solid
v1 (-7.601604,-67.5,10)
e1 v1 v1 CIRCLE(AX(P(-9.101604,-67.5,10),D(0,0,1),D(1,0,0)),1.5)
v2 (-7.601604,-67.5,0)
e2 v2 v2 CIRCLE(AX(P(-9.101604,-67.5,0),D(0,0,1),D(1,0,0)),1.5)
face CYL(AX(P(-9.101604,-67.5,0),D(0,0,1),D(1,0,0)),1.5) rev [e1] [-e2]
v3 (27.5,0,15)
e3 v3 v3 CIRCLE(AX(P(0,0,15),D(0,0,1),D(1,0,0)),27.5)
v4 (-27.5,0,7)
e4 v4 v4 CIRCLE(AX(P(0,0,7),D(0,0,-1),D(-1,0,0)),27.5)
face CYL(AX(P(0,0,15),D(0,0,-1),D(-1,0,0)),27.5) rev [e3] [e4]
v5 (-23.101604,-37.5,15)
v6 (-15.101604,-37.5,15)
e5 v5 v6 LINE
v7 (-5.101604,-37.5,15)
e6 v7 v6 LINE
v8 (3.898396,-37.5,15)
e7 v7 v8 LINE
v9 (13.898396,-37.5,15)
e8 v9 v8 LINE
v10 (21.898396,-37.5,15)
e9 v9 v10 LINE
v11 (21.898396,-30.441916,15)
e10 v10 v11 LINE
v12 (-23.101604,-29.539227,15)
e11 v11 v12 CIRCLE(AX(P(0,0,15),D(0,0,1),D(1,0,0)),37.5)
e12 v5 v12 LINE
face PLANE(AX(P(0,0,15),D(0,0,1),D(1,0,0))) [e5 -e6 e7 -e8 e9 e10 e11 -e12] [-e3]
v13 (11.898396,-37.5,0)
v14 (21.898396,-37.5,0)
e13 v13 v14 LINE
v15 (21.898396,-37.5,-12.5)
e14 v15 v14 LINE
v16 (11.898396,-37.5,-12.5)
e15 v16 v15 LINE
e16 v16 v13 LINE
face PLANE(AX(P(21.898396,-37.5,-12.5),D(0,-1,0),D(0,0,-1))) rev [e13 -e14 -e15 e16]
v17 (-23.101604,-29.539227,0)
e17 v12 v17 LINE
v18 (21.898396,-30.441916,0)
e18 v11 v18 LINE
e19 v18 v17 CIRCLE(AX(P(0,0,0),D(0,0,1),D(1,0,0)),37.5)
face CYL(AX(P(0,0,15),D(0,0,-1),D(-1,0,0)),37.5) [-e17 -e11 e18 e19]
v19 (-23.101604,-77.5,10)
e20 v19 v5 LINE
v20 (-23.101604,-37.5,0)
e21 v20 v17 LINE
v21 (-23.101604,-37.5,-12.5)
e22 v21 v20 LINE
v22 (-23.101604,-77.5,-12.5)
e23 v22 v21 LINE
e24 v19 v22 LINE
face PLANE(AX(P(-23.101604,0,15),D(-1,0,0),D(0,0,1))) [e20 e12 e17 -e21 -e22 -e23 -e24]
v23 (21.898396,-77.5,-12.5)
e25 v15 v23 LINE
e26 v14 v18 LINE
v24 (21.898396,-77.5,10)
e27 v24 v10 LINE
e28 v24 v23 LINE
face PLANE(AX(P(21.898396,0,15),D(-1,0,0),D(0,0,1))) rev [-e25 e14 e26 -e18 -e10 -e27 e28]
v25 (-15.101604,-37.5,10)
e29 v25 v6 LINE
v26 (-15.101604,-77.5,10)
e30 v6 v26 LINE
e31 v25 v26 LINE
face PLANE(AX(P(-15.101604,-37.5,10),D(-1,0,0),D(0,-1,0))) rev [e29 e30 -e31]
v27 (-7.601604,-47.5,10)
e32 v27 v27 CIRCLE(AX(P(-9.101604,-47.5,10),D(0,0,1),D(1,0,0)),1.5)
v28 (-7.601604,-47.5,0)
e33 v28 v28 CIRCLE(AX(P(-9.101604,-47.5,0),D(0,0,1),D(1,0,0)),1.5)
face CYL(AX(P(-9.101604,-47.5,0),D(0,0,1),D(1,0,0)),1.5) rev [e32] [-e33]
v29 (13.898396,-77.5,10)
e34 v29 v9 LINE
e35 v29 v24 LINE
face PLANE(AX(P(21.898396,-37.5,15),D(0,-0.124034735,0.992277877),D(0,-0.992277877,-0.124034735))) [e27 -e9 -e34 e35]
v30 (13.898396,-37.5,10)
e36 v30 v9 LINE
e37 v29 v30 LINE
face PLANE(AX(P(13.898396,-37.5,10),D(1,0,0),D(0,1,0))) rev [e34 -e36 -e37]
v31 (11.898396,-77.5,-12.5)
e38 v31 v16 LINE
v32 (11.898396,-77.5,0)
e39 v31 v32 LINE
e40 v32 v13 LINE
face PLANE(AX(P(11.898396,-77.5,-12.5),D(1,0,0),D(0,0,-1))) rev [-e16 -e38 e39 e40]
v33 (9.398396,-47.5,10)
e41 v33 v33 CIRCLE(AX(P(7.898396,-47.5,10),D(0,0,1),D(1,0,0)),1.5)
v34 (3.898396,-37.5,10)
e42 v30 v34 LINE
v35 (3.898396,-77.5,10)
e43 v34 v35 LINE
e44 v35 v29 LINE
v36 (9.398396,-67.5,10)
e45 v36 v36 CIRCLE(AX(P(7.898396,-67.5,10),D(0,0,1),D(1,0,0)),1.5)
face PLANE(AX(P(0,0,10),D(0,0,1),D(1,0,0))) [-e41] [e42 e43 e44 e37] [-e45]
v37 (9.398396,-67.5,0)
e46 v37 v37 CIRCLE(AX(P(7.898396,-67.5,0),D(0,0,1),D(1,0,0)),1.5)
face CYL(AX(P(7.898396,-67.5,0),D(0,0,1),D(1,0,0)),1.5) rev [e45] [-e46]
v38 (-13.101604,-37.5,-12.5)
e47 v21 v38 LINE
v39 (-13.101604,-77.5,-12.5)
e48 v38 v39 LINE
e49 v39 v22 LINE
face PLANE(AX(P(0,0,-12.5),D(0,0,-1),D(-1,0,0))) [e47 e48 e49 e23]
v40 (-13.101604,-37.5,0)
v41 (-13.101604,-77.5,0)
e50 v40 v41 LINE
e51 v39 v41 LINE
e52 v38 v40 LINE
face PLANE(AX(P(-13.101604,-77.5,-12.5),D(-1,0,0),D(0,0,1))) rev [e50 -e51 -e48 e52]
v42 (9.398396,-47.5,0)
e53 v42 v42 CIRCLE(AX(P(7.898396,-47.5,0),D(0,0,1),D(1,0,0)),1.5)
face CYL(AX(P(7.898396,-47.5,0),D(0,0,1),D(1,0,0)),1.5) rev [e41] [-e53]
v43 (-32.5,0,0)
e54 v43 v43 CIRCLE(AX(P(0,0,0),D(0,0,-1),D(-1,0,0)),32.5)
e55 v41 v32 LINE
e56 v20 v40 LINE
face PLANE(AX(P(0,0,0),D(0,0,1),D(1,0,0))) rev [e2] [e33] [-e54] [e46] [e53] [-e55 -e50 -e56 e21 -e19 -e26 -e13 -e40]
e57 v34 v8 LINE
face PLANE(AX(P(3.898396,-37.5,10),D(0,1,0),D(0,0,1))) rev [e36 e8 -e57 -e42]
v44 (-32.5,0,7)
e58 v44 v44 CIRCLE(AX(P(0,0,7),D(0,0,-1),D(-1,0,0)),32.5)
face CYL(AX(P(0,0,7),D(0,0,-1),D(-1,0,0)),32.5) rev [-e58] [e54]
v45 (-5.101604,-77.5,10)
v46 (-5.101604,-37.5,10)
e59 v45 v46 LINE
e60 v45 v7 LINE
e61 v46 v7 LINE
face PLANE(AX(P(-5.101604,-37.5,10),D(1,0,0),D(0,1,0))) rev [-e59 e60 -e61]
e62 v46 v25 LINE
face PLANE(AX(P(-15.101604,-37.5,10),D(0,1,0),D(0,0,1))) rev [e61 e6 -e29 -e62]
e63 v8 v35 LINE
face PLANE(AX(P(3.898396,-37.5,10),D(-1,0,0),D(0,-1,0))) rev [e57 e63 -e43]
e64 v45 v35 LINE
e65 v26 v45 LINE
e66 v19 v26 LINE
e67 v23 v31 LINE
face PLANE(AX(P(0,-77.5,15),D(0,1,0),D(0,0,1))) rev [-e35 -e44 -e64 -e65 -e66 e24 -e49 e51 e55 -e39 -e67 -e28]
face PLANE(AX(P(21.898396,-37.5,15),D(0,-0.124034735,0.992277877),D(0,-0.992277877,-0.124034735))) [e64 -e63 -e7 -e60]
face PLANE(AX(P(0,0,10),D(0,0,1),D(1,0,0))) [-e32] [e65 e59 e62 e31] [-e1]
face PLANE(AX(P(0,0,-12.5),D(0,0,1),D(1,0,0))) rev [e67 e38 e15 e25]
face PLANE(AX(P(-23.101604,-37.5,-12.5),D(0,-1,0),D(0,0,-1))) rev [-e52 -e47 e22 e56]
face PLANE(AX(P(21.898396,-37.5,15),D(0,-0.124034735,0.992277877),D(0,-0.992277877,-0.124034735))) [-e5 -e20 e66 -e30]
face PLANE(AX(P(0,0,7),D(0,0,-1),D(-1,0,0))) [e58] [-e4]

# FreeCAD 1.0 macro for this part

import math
import FreeCAD as App
import Part
import Sketcher
from FreeCAD import Vector
Q = App.Units.Quantity


def add_polygon(sketch, points):
    """Adds a closed chain of lines whose ends are joined by coincident constraints."""
    first, n = sketch.GeometryCount, len(points)
    for a, b in zip(points, points[1:] + points[:1]):
        sketch.addGeometry(Part.LineSegment(App.Vector(*a, 0), App.Vector(*b, 0)), False)
    for i in range(n):
        sketch.addConstraint(Sketcher.Constraint("Coincident", first + i, 2, first + (i + 1) % n, 1))

doc = App.newDocument("Part")
body = doc.addObject("PartDesign::Body", "Body")

# Sketch on XY plane
sketch1 = doc.addObject("Sketcher::SketchObject", "Sketch")
body.addObject(sketch1)
sketch1.AttachmentSupport = (doc.XY_Plane, [""])
sketch1.MapMode = "FlatFace"
sketch1.addGeometry(Part.LineSegment(Vector(-23.101604, -29.539227, 0), Vector(-23.101604, -77.5, 0)), False)
sketch1.addGeometry(Part.LineSegment(Vector(-23.101604, -77.5, 0), Vector(21.898396, -77.5, 0)), False)
sketch1.addGeometry(Part.LineSegment(Vector(21.898396, -77.5, 0), Vector(21.898396, -30.441916, 0)), False)
sketch1.addGeometry(Part.ArcOfCircle(Part.Circle(Vector(0, 0, 0), Vector(0, 0, 1), 37.5), math.radians(-54.270642), math.radians(231.972272)), False)
sketch1.addGeometry(Part.Circle(Vector(0, 0, 0), Vector(0, 0, 1), 27.5), False)
sketch1.addConstraint(Sketcher.Constraint("Coincident", 0, 2, 1, 1))
sketch1.addConstraint(Sketcher.Constraint("Coincident", 1, 2, 2, 1))
sketch1.addConstraint(Sketcher.Constraint("Coincident", 2, 2, 3, 1))
sketch1.addConstraint(Sketcher.Constraint("Coincident", 3, 2, 0, 1))
sketch1.addConstraint(Sketcher.Constraint("Vertical", 0))
sketch1.addConstraint(Sketcher.Constraint("Horizontal", 1))
sketch1.addConstraint(Sketcher.Constraint("Vertical", 2))
sketch1.addConstraint(Sketcher.Constraint("Coincident", 3, 3, -1, 1))
sketch1.addConstraint(Sketcher.Constraint("Coincident", 4, 3, -1, 1))
sketch1.addConstraint(Sketcher.Constraint("Diameter", 4, Q("55 mm")))
sketch1.addConstraint(Sketcher.Constraint("Radius", 3, Q("37.5 mm")))
sketch1.addConstraint(Sketcher.Constraint("DistanceX", 1, 1, 1, 2, Q("45 mm")))
sketch1.addConstraint(Sketcher.Constraint("DistanceY", 0, 2, -1, 1, Q("77.5 mm")))
sketch1.addConstraint(Sketcher.Constraint("DistanceY", 0, 2, 0, 1, Q("47.960773 mm")))
pad1 = doc.addObject("PartDesign::Pad", "Pad")
body.addObject(pad1)
pad1.Profile = sketch1
pad1.Length = 15

# Sketch on XY plane
sketch2 = doc.addObject("Sketcher::SketchObject", "Sketch001")
body.addObject(sketch2)
sketch2.AttachmentSupport = (doc.XY_Plane, [""])
sketch2.MapMode = "FlatFace"
sketch2.addGeometry(Part.Circle(Vector(0, 0, 0), Vector(0, 0, 1), 32.5), False)
sketch2.addGeometry(Part.Circle(Vector(0, 0, 0), Vector(0, 0, 1), 27.5), False)
sketch2.addConstraint(Sketcher.Constraint("Coincident", 0, 3, -1, 1))
sketch2.addConstraint(Sketcher.Constraint("Coincident", 1, 3, -1, 1))
sketch2.addConstraint(Sketcher.Constraint("Diameter", 0, Q("65 mm")))
sketch2.addConstraint(Sketcher.Constraint("Diameter", 1, Q("55 mm")))
pocket1 = doc.addObject("PartDesign::Pocket", "Pocket")
body.addObject(pocket1)
pocket1.Profile = sketch2
pocket1.Length = 7
pocket1.Reversed = True

# Sketch on YZ plane
sketch3 = doc.addObject("Sketcher::SketchObject", "Sketch002")
body.addObject(sketch3)
sketch3.AttachmentSupport = (doc.YZ_Plane, [""])
sketch3.MapMode = "FlatFace"
sketch3.AttachmentOffset = App.Placement(Vector(0, 0, 21.898396), App.Rotation())
add_polygon(sketch3, [(-37.5, 15), (-77.5, 15), (-77.5, 10), (-37.5, 10)])  # lines 0-3
sketch3.addConstraint(Sketcher.Constraint("Horizontal", 0))
sketch3.addConstraint(Sketcher.Constraint("Vertical", 1))
sketch3.addConstraint(Sketcher.Constraint("Horizontal", 2))
sketch3.addConstraint(Sketcher.Constraint("Vertical", 3))
sketch3.addConstraint(Sketcher.Constraint("DistanceX", 0, 2, 0, 1, Q("40 mm")))
sketch3.addConstraint(Sketcher.Constraint("DistanceY", 1, 2, 1, 1, Q("5 mm")))
sketch3.addConstraint(Sketcher.Constraint("DistanceY", -1, 1, 0, 2, Q("15 mm")))
sketch3.addConstraint(Sketcher.Constraint("DistanceX", 0, 2, -1, 1, Q("77.5 mm")))
pocket2 = doc.addObject("PartDesign::Pocket", "Pocket001")
body.addObject(pocket2)
pocket2.Profile = sketch3
pocket2.Length = 45

# Sketch on YZ plane
sketch4 = doc.addObject("Sketcher::SketchObject", "Sketch003")
body.addObject(sketch4)
sketch4.AttachmentSupport = (doc.YZ_Plane, [""])
sketch4.MapMode = "FlatFace"
sketch4.AttachmentOffset = App.Placement(Vector(0, 0, -23.101604), App.Rotation())
add_polygon(sketch4, [(-37.5, 15), (-37.5, 10), (-77.5, 10)])  # lines 0-2
sketch4.addConstraint(Sketcher.Constraint("Vertical", 0))
sketch4.addConstraint(Sketcher.Constraint("Horizontal", 1))
sketch4.addConstraint(Sketcher.Constraint("DistanceX", 1, 2, 1, 1, Q("40 mm")))
sketch4.addConstraint(Sketcher.Constraint("DistanceY", 0, 2, 0, 1, Q("5 mm")))
sketch4.addConstraint(Sketcher.Constraint("DistanceY", -1, 1, 0, 2, Q("10 mm")))
sketch4.addConstraint(Sketcher.Constraint("DistanceX", 0, 2, -1, 1, Q("37.5 mm")))
pad2 = doc.addObject("PartDesign::Pad", "Pad001")
body.addObject(pad2)
pad2.Profile = sketch4
pad2.Length = 45

# Sketch on XY plane
sketch5 = doc.addObject("Sketcher::SketchObject", "Sketch004")
body.addObject(sketch5)
sketch5.AttachmentSupport = (doc.XY_Plane, [""])
sketch5.MapMode = "FlatFace"
sketch5.AttachmentOffset = App.Placement(Vector(0, 0, 15), App.Rotation())
add_polygon(sketch5, [(-15.101604, -37.5), (-15.101604, -77.5), (-5.101604, -77.5), (-5.101604, -37.5)])  # lines 0-3
add_polygon(sketch5, [(3.898396, -37.5), (3.898396, -77.5), (13.898396, -77.5), (13.898396, -37.5)])  # lines 4-7
sketch5.addConstraint(Sketcher.Constraint("Vertical", 0))
sketch5.addConstraint(Sketcher.Constraint("Horizontal", 1))
sketch5.addConstraint(Sketcher.Constraint("Vertical", 2))
sketch5.addConstraint(Sketcher.Constraint("Horizontal", 3))
sketch5.addConstraint(Sketcher.Constraint("Vertical", 4))
sketch5.addConstraint(Sketcher.Constraint("Horizontal", 5))
sketch5.addConstraint(Sketcher.Constraint("Vertical", 6))
sketch5.addConstraint(Sketcher.Constraint("Horizontal", 7))
sketch5.addConstraint(Sketcher.Constraint("Horizontal", 1, 2, 4, 2))
sketch5.addConstraint(Sketcher.Constraint("Horizontal", 3, 2, 6, 2))
sketch5.addConstraint(Sketcher.Constraint("Equal", 3, 5))
sketch5.addConstraint(Sketcher.Constraint("DistanceX", 1, 1, 1, 2, Q("10 mm")))
sketch5.addConstraint(Sketcher.Constraint("DistanceY", 0, 2, 0, 1, Q("40 mm")))
sketch5.addConstraint(Sketcher.Constraint("DistanceX", 1, 2, 4, 2, Q("9 mm")))
sketch5.addConstraint(Sketcher.Constraint("DistanceY", 0, 2, -1, 1, Q("77.5 mm")))
sketch5.addConstraint(Sketcher.Constraint("DistanceX", 0, 2, -1, 1, Q("15.101604 mm")))
pocket3 = doc.addObject("PartDesign::Pocket", "Pocket002")
body.addObject(pocket3)
pocket3.Profile = sketch5
pocket3.Length = 5

# Sketch on XY plane
sketch6 = doc.addObject("Sketcher::SketchObject", "Sketch005")
body.addObject(sketch6)
sketch6.AttachmentSupport = (doc.XY_Plane, [""])
sketch6.MapMode = "FlatFace"
add_polygon(sketch6, [(21.898396, -37.5), (21.898396, -77.5), (11.898396, -77.5), (11.898396, -37.5)])  # lines 0-3
add_polygon(sketch6, [(-13.101604, -37.5), (-13.101604, -77.5), (-23.101604, -77.5), (-23.101604, -37.5)])  # lines 4-7
sketch6.addConstraint(Sketcher.Constraint("Vertical", 0))
sketch6.addConstraint(Sketcher.Constraint("Horizontal", 1))
sketch6.addConstraint(Sketcher.Constraint("Vertical", 2))
sketch6.addConstraint(Sketcher.Constraint("Horizontal", 3))
sketch6.addConstraint(Sketcher.Constraint("Vertical", 4))
sketch6.addConstraint(Sketcher.Constraint("Horizontal", 5))
sketch6.addConstraint(Sketcher.Constraint("Vertical", 6))
sketch6.addConstraint(Sketcher.Constraint("Horizontal", 7))
sketch6.addConstraint(Sketcher.Constraint("Horizontal", 1, 2, 4, 2))
sketch6.addConstraint(Sketcher.Constraint("Horizontal", 3, 2, 6, 2))
sketch6.addConstraint(Sketcher.Constraint("Equal", 3, 5))
sketch6.addConstraint(Sketcher.Constraint("DistanceX", 1, 2, 1, 1, Q("10 mm")))
sketch6.addConstraint(Sketcher.Constraint("DistanceY", 0, 2, 0, 1, Q("40 mm")))
sketch6.addConstraint(Sketcher.Constraint("DistanceX", 4, 2, 1, 2, Q("25 mm")))
sketch6.addConstraint(Sketcher.Constraint("DistanceY", 0, 2, -1, 1, Q("77.5 mm")))
sketch6.addConstraint(Sketcher.Constraint("DistanceX", -1, 1, 0, 2, Q("21.898396 mm")))
pad3 = doc.addObject("PartDesign::Pad", "Pad002")
body.addObject(pad3)
pad3.Profile = sketch6
pad3.Length = 12.5
pad3.Reversed = True

# Sketch on XY plane
sketch7 = doc.addObject("Sketcher::SketchObject", "Sketch006")
body.addObject(sketch7)
sketch7.AttachmentSupport = (doc.XY_Plane, [""])
sketch7.MapMode = "FlatFace"
sketch7.AttachmentOffset = App.Placement(Vector(0, 0, 10), App.Rotation())
sketch7.addGeometry(Part.Circle(Vector(-9.101604, -47.5, 0), Vector(0, 0, 1), 1.5), False)
sketch7.addGeometry(Part.Circle(Vector(-9.101604, -67.5, 0), Vector(0, 0, 1), 1.5), False)
sketch7.addGeometry(Part.Circle(Vector(7.898396, -67.5, 0), Vector(0, 0, 1), 1.5), False)
sketch7.addGeometry(Part.Circle(Vector(7.898396, -47.5, 0), Vector(0, 0, 1), 1.5), False)
sketch7.addConstraint(Sketcher.Constraint("Equal", 0, 1))
sketch7.addConstraint(Sketcher.Constraint("Equal", 1, 2))
sketch7.addConstraint(Sketcher.Constraint("Equal", 2, 3))
sketch7.addConstraint(Sketcher.Constraint("Horizontal", 1, 3, 2, 3))
sketch7.addConstraint(Sketcher.Constraint("Horizontal", 0, 3, 3, 3))
sketch7.addConstraint(Sketcher.Constraint("Vertical", 0, 3, 1, 3))
sketch7.addConstraint(Sketcher.Constraint("Vertical", 2, 3, 3, 3))
sketch7.addConstraint(Sketcher.Constraint("Diameter", 0, Q("3 mm")))
sketch7.addConstraint(Sketcher.Constraint("DistanceY", 1, 3, 0, 3, Q("20 mm")))
sketch7.addConstraint(Sketcher.Constraint("DistanceX", 1, 3, 2, 3, Q("17 mm")))
sketch7.addConstraint(Sketcher.Constraint("DistanceY", 0, 3, -1, 1, Q("47.5 mm")))
sketch7.addConstraint(Sketcher.Constraint("DistanceX", 0, 3, -1, 1, Q("9.101604 mm")))
pocket4 = doc.addObject("PartDesign::Pocket", "Pocket003")
body.addObject(pocket4)
pocket4.Profile = sketch7
pocket4.Length = 10

doc.recompute()
